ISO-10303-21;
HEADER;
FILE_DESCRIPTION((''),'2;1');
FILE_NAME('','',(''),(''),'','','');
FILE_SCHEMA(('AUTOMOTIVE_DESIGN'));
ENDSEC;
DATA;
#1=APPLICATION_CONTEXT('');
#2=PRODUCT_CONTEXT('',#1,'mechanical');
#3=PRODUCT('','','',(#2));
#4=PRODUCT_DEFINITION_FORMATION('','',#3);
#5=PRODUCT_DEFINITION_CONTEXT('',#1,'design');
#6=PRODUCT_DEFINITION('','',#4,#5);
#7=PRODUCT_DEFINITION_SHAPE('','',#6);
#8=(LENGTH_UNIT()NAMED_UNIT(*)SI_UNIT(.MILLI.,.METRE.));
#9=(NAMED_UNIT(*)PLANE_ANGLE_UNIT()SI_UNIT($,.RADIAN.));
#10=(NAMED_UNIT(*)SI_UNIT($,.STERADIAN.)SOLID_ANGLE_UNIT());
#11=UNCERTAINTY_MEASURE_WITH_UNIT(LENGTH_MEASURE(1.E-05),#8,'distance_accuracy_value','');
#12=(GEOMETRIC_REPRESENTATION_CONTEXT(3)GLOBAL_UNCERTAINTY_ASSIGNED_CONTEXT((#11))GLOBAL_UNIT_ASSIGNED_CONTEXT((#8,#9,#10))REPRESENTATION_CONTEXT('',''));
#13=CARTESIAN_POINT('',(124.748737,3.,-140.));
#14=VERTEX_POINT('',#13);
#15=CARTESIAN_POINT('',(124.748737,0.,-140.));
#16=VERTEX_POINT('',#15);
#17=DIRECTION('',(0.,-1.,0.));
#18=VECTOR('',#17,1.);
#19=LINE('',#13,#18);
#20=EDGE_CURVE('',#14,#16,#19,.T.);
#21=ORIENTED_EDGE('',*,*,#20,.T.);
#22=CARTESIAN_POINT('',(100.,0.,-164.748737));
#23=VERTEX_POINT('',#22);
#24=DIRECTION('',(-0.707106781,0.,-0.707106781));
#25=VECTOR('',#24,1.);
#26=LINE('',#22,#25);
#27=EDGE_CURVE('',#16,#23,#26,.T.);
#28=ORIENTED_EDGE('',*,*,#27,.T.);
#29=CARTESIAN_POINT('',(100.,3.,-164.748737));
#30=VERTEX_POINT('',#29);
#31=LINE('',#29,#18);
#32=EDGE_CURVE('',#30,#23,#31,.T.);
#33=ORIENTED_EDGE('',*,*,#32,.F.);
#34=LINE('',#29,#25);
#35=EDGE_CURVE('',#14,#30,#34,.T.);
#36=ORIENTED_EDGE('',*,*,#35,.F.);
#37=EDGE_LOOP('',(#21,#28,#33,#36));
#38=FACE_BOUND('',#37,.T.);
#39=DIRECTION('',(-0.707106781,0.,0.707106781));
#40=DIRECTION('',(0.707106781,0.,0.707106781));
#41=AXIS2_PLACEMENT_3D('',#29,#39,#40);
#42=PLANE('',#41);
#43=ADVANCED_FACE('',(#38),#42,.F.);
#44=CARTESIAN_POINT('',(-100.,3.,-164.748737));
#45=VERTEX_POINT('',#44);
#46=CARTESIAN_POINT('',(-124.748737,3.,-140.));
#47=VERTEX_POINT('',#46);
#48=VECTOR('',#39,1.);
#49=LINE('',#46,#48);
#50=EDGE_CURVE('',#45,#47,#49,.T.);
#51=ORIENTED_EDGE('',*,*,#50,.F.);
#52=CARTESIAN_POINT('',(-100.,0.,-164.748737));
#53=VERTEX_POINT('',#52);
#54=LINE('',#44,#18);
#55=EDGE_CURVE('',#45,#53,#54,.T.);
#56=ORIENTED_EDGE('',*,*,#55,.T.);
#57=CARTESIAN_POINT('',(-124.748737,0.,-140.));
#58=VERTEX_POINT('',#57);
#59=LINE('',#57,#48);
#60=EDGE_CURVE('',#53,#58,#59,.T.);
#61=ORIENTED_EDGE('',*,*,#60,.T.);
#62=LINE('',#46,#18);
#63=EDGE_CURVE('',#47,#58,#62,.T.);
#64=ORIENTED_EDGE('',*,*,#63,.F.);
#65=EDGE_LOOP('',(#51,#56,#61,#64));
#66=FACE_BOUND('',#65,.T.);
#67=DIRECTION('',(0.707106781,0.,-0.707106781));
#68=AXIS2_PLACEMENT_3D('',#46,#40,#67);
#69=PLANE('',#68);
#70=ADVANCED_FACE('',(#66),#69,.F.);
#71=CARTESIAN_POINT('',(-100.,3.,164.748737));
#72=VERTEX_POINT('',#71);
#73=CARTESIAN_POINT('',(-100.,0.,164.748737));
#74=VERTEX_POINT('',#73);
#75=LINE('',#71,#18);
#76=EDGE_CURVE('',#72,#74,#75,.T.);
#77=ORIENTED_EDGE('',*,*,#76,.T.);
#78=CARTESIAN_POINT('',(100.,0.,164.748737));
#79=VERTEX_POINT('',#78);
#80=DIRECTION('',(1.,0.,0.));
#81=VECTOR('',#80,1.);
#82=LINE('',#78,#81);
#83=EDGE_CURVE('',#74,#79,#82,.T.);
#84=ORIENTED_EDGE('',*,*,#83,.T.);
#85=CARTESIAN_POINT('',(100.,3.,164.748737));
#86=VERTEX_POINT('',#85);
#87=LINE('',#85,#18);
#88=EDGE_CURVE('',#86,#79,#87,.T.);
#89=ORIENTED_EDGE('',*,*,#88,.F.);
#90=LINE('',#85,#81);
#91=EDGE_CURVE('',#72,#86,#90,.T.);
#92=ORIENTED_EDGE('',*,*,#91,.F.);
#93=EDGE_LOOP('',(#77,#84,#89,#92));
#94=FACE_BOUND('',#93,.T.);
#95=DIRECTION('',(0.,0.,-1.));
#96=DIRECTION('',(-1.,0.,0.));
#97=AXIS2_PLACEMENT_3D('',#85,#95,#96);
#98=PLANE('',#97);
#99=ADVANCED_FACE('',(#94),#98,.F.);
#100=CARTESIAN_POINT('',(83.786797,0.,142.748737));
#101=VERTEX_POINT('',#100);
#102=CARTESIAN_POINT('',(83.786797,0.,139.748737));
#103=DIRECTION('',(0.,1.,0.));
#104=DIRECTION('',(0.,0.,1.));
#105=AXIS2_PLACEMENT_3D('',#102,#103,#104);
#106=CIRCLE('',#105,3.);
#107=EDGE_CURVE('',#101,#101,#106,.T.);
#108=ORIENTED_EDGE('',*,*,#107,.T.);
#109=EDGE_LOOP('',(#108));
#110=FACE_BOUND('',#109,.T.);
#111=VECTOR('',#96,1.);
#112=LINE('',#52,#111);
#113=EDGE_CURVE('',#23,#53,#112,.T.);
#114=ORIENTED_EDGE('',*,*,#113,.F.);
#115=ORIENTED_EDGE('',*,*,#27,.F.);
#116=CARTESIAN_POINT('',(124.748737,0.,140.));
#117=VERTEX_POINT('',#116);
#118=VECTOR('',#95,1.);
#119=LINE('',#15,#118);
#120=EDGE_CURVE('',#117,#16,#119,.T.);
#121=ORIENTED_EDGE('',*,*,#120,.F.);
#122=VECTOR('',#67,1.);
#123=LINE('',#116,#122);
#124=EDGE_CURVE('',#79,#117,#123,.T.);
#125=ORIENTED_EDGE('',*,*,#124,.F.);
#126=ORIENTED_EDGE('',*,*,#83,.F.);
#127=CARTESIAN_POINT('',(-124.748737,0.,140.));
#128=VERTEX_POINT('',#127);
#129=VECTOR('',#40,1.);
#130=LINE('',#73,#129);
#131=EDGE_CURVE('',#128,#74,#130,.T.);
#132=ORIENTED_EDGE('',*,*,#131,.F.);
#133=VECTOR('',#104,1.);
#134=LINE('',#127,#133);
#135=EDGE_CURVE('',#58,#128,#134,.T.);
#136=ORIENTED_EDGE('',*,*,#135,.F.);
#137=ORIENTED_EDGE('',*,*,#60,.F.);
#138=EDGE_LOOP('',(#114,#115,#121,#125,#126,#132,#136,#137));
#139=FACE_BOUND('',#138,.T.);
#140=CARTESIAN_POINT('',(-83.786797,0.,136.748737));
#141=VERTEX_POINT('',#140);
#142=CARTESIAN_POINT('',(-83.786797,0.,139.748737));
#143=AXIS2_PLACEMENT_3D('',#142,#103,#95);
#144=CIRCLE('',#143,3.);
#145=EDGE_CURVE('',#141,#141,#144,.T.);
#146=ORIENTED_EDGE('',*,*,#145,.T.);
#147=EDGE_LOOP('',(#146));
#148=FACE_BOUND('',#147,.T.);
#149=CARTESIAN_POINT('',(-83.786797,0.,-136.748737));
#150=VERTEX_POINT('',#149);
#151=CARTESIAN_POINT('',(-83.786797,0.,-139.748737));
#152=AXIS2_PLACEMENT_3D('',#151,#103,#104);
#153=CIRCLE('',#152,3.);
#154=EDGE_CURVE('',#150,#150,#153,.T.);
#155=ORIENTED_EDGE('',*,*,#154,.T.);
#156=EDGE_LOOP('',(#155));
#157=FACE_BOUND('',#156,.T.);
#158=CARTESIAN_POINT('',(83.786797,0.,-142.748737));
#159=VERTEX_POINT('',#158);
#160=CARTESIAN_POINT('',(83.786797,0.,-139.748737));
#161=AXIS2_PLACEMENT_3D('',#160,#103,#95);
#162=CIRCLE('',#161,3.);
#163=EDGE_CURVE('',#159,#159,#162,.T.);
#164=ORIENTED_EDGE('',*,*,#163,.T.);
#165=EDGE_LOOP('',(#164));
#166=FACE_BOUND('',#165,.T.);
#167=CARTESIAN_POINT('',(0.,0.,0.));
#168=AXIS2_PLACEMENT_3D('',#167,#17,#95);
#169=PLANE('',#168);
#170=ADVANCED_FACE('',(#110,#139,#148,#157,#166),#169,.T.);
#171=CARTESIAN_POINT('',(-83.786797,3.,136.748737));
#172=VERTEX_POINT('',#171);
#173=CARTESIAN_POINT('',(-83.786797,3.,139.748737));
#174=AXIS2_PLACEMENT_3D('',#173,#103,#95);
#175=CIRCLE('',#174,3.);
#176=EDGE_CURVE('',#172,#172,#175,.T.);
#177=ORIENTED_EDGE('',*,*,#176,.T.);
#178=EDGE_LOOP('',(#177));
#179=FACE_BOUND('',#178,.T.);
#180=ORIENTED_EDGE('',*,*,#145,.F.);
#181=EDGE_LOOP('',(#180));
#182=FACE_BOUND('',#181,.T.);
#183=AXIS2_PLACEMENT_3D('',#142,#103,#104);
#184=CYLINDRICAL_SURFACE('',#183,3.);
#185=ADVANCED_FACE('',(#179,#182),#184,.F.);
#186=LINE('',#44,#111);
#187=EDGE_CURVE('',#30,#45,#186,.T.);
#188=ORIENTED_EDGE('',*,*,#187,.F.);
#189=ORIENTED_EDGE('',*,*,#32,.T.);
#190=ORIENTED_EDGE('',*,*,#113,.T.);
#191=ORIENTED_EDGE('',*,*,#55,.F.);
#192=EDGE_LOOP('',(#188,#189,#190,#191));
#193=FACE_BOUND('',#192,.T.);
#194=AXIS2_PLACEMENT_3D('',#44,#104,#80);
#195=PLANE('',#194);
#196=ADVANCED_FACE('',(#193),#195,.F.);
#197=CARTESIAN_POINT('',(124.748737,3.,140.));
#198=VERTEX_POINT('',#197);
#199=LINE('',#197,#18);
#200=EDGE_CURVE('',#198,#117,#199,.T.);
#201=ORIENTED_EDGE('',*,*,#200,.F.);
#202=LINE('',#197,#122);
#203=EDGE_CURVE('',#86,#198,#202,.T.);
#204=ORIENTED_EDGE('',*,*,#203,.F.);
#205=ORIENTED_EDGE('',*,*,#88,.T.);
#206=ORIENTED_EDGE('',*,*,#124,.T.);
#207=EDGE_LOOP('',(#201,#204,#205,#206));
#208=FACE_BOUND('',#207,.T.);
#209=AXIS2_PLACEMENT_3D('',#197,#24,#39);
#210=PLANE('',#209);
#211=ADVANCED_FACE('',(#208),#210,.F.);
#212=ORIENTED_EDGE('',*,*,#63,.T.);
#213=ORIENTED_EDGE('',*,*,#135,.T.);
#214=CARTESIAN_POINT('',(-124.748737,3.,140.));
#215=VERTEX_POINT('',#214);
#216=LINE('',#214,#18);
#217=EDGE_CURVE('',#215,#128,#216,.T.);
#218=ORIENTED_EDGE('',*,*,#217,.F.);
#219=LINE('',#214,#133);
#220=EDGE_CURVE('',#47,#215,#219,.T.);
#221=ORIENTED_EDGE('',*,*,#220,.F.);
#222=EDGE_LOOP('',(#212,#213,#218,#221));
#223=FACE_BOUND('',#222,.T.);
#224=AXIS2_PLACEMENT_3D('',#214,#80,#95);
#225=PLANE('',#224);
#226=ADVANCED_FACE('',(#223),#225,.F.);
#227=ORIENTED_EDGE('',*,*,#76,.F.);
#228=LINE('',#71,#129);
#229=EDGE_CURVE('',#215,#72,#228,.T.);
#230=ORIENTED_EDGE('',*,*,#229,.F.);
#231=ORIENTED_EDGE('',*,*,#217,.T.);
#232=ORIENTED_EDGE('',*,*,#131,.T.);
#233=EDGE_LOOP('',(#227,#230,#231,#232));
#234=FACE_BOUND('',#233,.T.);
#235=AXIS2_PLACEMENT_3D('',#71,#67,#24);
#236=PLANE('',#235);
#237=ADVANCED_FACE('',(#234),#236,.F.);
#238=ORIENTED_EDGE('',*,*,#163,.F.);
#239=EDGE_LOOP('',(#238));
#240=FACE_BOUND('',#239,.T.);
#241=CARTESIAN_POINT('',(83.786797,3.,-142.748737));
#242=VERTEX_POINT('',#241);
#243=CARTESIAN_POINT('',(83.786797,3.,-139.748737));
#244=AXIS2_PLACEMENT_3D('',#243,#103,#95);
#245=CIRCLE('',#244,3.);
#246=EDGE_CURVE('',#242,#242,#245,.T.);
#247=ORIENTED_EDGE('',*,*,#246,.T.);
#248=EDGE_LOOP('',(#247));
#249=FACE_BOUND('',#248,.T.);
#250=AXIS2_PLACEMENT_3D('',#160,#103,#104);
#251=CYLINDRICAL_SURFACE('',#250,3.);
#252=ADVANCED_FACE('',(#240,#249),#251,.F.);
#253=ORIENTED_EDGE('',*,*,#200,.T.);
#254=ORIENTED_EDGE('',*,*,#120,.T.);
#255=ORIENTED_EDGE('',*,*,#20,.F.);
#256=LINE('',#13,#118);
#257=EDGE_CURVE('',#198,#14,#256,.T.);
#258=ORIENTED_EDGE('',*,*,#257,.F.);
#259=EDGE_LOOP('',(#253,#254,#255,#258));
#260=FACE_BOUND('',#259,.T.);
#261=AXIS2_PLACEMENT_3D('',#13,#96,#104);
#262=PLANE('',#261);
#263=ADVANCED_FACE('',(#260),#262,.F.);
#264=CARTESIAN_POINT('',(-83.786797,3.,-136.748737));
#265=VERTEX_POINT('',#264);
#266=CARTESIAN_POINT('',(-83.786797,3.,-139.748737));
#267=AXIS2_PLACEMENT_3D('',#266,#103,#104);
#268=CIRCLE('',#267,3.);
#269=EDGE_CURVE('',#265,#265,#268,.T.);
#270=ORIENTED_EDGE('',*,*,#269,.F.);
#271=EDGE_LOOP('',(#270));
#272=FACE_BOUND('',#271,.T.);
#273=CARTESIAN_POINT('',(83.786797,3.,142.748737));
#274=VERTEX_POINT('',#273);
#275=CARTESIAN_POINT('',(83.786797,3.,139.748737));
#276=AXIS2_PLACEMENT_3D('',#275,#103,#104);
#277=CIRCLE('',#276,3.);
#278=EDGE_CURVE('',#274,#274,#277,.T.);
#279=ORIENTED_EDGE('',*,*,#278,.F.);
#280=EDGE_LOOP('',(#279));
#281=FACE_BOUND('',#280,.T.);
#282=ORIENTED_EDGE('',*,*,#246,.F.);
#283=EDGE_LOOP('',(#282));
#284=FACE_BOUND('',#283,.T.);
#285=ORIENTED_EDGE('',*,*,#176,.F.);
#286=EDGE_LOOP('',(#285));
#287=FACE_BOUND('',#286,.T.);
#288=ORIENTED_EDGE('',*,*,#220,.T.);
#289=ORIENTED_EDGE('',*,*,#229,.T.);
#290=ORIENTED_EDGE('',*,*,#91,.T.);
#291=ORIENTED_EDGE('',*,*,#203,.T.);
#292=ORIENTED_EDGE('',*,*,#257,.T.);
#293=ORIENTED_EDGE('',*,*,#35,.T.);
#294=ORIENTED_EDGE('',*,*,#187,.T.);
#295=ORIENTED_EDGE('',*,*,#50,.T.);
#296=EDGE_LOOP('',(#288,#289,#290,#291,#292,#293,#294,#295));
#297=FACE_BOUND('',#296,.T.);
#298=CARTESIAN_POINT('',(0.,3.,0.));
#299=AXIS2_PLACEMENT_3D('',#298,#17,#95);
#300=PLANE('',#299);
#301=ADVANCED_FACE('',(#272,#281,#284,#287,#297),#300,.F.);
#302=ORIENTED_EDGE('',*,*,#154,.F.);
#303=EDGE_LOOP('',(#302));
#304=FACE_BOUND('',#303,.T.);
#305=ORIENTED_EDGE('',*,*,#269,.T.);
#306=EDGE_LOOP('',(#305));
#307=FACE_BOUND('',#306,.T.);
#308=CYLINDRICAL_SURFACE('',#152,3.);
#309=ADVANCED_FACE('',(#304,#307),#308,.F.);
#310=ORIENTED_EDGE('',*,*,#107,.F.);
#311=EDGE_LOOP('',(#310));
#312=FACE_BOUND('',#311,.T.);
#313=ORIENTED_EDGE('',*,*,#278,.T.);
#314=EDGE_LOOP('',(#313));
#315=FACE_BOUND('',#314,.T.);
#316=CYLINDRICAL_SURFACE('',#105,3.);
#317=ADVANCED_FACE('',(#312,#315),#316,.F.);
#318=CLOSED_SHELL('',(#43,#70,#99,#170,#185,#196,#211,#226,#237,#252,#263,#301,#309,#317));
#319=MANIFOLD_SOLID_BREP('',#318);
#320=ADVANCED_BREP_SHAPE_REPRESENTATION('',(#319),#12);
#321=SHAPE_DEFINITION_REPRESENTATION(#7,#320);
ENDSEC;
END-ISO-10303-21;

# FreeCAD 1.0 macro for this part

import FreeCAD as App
import Part
import Sketcher


def add_polygon(sketch, points):
    """Adds a closed chain of lines whose ends are joined by coincident constraints."""
    first, n = sketch.GeometryCount, len(points)
    for a, b in zip(points, points[1:] + points[:1]):
        sketch.addGeometry(Part.LineSegment(App.Vector(*a, 0), App.Vector(*b, 0)), False)
    for i in range(n):
        sketch.addConstraint(Sketcher.Constraint("Coincident", first + i, 2, first + (i + 1) % n, 1))

doc = App.newDocument("Part")
body = doc.addObject("PartDesign::Body", "Body")

sketch1 = body.newObject("Sketcher::SketchObject", "Sketch")
sketch1.AttachmentSupport = (doc.getObject("XZ_Plane"), [""])
sketch1.MapMode = "FlatFace"
add_polygon(sketch1, [(-100, 165), (100, 165), (125, 140), (125, -140), (100, -165), (-100, -165), (-125, -140), (-125, 140)])
sketch1.addConstraint([
    Sketcher.Constraint("Horizontal", 0),
    Sketcher.Constraint("Vertical", 2),
    Sketcher.Constraint("Horizontal", 4),
    Sketcher.Constraint("Vertical", 6),
    Sketcher.Constraint("Symmetric", 0, 2, 4, 2, -1, 1),
    Sketcher.Constraint("Symmetric", 1, 2, 5, 2, -1, 1),
    Sketcher.Constraint("Perpendicular", 1, 3),
    Sketcher.Constraint("Perpendicular", 5, 7),
    Sketcher.Constraint("Horizontal", 2, 2, 5, 2),
    Sketcher.Constraint("Horizontal", 1, 2, 6, 2),
    Sketcher.Constraint("Vertical", 0, 2, 3, 2),
    Sketcher.Constraint("DistanceX", 0, 1, 0, 2, 200.0),
    Sketcher.Constraint("DistanceY", 2, 2, 2, 1, 280.0),
    Sketcher.Constraint("Distance", 1, 35.0),
])
pad1 = body.newObject("PartDesign::Pad", "Pad")
pad1.Profile = sketch1
pad1.Length = 3
pad1.Reversed = True

sketch2 = body.newObject("Sketcher::SketchObject", "Sketch001")
sketch2.AttachmentSupport = (doc.getObject("XZ_Plane"), [""])
sketch2.MapMode = "FlatFace"
sketch2.AttachmentOffset = App.Placement(App.Vector(0, 0, -3), App.Rotation())
sketch2.addGeometry([
    Part.Circle(App.Vector(-83.8, -139.7, 0), App.Vector(0, 0, 1), 3),
    Part.Circle(App.Vector(83.8, -139.7, 0), App.Vector(0, 0, 1), 3),
    Part.Circle(App.Vector(83.8, 139.7, 0), App.Vector(0, 0, 1), 3),
    Part.Circle(App.Vector(-83.8, 139.7, 0), App.Vector(0, 0, 1), 3),
], False)
sketch2.addConstraint([
    Sketcher.Constraint("Equal", 0, 1),
    Sketcher.Constraint("Equal", 1, 2),
    Sketcher.Constraint("Equal", 2, 3),
    Sketcher.Constraint("Symmetric", 0, 3, 2, 3, -1, 1),
    Sketcher.Constraint("Symmetric", 1, 3, 3, 3, -1, 1),
    Sketcher.Constraint("Symmetric", 0, 3, 1, 3, -2),
    Sketcher.Constraint("Diameter", 0, 6.0),
    Sketcher.Constraint("DistanceX", 0, 3, -1, 1, 83.786797),
    Sketcher.Constraint("DistanceY", 0, 3, -1, 1, 139.748737),
])
pocket1 = body.newObject("PartDesign::Pocket", "Pocket")
pocket1.Profile = sketch2
pocket1.Type = "ThroughAll"
pocket1.Reversed = True

doc.recompute()
